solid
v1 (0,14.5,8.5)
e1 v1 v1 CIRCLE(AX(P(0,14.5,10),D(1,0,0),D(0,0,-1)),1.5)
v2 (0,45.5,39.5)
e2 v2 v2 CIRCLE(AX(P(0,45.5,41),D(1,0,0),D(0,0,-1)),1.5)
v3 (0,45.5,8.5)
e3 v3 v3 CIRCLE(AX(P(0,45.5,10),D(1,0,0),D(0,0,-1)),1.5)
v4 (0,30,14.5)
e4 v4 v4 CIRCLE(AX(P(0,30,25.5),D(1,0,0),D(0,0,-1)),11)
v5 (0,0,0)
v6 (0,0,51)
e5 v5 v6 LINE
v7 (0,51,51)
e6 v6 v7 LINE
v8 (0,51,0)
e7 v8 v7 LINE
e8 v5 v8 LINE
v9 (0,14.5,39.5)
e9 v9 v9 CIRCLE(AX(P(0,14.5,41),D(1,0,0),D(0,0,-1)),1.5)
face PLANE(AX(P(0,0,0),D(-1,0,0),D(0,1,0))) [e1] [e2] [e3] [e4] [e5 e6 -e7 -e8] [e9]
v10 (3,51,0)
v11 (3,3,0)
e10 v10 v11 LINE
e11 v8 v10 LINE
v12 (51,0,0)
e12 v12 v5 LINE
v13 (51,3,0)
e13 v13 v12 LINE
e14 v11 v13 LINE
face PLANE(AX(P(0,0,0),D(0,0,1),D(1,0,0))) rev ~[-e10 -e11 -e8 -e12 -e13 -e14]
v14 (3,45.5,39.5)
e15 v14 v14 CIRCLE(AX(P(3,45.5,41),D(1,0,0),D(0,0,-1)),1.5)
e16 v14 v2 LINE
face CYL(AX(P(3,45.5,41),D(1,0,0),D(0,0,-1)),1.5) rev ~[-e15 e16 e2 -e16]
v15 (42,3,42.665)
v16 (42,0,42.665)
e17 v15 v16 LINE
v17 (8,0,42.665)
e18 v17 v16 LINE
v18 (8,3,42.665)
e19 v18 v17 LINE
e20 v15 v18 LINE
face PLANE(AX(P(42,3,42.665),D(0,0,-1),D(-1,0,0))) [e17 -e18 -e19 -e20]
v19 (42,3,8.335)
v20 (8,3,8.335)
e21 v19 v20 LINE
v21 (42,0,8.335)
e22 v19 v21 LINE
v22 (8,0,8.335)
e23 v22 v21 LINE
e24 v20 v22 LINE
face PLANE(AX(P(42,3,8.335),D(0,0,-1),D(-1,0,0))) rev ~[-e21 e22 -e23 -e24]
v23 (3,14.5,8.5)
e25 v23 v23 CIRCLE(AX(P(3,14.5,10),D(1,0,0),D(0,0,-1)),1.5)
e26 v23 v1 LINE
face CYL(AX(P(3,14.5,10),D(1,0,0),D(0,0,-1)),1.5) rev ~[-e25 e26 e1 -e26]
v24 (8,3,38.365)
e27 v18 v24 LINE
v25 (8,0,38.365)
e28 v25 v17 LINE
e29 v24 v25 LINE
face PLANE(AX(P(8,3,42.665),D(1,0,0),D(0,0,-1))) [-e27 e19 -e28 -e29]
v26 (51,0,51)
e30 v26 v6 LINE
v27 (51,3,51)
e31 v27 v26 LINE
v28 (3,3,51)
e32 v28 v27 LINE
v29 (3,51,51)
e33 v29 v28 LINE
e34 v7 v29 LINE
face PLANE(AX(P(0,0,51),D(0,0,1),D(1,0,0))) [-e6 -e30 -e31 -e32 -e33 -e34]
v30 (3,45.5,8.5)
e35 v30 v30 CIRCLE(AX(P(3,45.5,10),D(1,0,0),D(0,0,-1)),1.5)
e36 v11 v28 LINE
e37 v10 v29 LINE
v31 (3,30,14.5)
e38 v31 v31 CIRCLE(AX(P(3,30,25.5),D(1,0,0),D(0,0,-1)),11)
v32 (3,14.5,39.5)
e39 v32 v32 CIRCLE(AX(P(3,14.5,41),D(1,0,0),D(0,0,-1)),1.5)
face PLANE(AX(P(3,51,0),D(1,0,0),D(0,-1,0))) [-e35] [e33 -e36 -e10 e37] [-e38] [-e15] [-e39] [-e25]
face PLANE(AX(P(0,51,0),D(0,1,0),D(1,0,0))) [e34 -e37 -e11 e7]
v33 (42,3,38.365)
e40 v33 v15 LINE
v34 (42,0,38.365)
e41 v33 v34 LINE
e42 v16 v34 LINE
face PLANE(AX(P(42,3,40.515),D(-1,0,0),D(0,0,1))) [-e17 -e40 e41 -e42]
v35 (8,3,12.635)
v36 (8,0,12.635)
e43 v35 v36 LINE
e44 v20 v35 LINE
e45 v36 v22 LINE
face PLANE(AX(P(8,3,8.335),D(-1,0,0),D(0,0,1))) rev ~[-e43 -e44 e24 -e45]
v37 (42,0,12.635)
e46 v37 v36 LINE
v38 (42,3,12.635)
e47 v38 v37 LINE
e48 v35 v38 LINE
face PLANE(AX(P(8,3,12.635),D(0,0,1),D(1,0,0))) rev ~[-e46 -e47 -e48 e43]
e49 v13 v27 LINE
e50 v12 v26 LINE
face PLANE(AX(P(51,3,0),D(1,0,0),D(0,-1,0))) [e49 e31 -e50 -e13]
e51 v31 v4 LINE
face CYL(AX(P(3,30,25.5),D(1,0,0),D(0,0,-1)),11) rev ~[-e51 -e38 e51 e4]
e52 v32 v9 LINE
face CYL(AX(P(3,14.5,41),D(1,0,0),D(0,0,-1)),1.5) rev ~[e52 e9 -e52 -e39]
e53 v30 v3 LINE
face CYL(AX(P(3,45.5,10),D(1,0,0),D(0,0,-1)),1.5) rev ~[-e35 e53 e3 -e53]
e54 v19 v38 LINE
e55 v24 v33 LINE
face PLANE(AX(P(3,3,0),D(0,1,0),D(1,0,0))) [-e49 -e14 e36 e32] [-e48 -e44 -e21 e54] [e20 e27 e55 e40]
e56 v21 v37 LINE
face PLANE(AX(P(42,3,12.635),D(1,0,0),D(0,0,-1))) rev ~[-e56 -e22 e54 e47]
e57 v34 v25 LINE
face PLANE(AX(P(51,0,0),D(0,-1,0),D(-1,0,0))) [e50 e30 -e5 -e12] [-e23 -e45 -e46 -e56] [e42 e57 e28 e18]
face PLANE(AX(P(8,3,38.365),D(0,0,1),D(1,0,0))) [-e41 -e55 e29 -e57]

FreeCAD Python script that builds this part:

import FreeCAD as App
import Part
import Sketcher
from FreeCAD import Vector
Q = App.Units.Quantity

doc = App.newDocument("Part")
body = doc.addObject("PartDesign::Body", "Body")

sketch1 = body.newObject("Sketcher::SketchObject", "Sketch")
sketch1.AttachmentSupport = (doc.getObject("XY_Plane"), [""])
sketch1.MapMode = "FlatFace"
sketch1.addGeometry([
    Part.LineSegment(Vector(0, 51, 0), Vector(0, 0, 0)),
    Part.LineSegment(Vector(0, 0, 0), Vector(51, 0, 0)),
    Part.LineSegment(Vector(51, 0, 0), Vector(51, 3, 0)),
    Part.LineSegment(Vector(51, 3, 0), Vector(3, 3, 0)),
    Part.LineSegment(Vector(3, 3, 0), Vector(3, 51, 0)),
    Part.LineSegment(Vector(3, 51, 0), Vector(0, 51, 0)),
], False)
sketch1.addConstraint([
    Sketcher.Constraint("Coincident", 0, 2, 1, 1),
    Sketcher.Constraint("Coincident", 1, 2, 2, 1),
    Sketcher.Constraint("Coincident", 2, 2, 3, 1),
    Sketcher.Constraint("Coincident", 3, 2, 4, 1),
    Sketcher.Constraint("Coincident", 4, 2, 5, 1),
    Sketcher.Constraint("Coincident", 5, 2, 0, 1),
    Sketcher.Constraint("Vertical", 0),
    Sketcher.Constraint("Horizontal", 1),
    Sketcher.Constraint("Vertical", 2),
    Sketcher.Constraint("Horizontal", 3),
    Sketcher.Constraint("Vertical", 4),
    Sketcher.Constraint("Horizontal", 5),
    Sketcher.Constraint("Coincident", 0, 2, -1, 1),
    Sketcher.Constraint("Equal", 1, 0),
    Sketcher.Constraint("Equal", 5, 2),
    Sketcher.Constraint("DistanceX", 1, 1, 1, 2, Q("51 mm")),
    Sketcher.Constraint("DistanceX", 3, 2, 3, 1, Q("48 mm")),
])
pad1 = body.newObject("PartDesign::Pad", "Pad")
pad1.Profile = sketch1
pad1.Length = 51

sketch2 = body.newObject("Sketcher::SketchObject", "Sketch001")
sketch2.AttachmentSupport = (doc.getObject("YZ_Plane"), [""])
sketch2.MapMode = "FlatFace"
sketch2.AttachmentOffset = App.Placement(Vector(0, 0, 3), App.Rotation())
sketch2.addGeometry([
    Part.Circle(Vector(30, 25.5, 0), Vector(0, 0, 1), 11),
    Part.Circle(Vector(45.5, 41, 0), Vector(0, 0, 1), 1.5),
    Part.Circle(Vector(45.5, 10, 0), Vector(0, 0, 1), 1.5),
    Part.Circle(Vector(14.5, 10, 0), Vector(0, 0, 1), 1.5),
    Part.Circle(Vector(14.5, 41, 0), Vector(0, 0, 1), 1.5),
], False)
sketch2.addConstraint([
    Sketcher.Constraint("Equal", 1, 2),
    Sketcher.Constraint("Equal", 2, 3),
    Sketcher.Constraint("Equal", 3, 4),
    Sketcher.Constraint("Horizontal", 2, 3, 3, 3),
    Sketcher.Constraint("Horizontal", 1, 3, 4, 3),
    Sketcher.Constraint("Vertical", 1, 3, 2, 3),
    Sketcher.Constraint("Vertical", 3, 3, 4, 3),
    Sketcher.Constraint("Diameter", 0, Q("22 mm")),
    Sketcher.Constraint("Diameter", 1, Q("3 mm")),
    Sketcher.Constraint("DistanceX", -1, 1, 0, 3, Q("30 mm")),
    Sketcher.Constraint("DistanceY", -1, 1, 1, 3, Q("41 mm")),
    Sketcher.Constraint("DistanceY", -1, 1, 2, 3, Q("10 mm")),
    Sketcher.Constraint("DistanceX", 3, 3, 2, 3, Q("31 mm")),
    Sketcher.Constraint("DistanceY", -1, 1, 0, 3, Q("25.5 mm")),
    Sketcher.Constraint("DistanceX", -1, 1, 1, 3, Q("45.5 mm")),
])
pocket1 = body.newObject("PartDesign::Pocket", "Pocket")
pocket1.Profile = sketch2
pocket1.Length = 3

sketch3 = body.newObject("Sketcher::SketchObject", "Sketch002")
sketch3.AttachmentSupport = (doc.getObject("XZ_Plane"), [""])
sketch3.MapMode = "FlatFace"
sketch3.AttachmentOffset = App.Placement(Vector(0, 0, -3), App.Rotation())
sketch3.addGeometry([
    Part.LineSegment(Vector(42, 12.635, 0), Vector(42, 8.335, 0)),
    Part.LineSegment(Vector(42, 8.335, 0), Vector(8, 8.335, 0)),
    Part.LineSegment(Vector(8, 8.335, 0), Vector(8, 12.635, 0)),
    Part.LineSegment(Vector(8, 12.635, 0), Vector(42, 12.635, 0)),
    Part.LineSegment(Vector(42, 42.665, 0), Vector(42, 38.365, 0)),
    Part.LineSegment(Vector(42, 38.365, 0), Vector(8, 38.365, 0)),
    Part.LineSegment(Vector(8, 38.365, 0), Vector(8, 42.665, 0)),
    Part.LineSegment(Vector(8, 42.665, 0), Vector(42, 42.665, 0)),
], False)
sketch3.addConstraint([
    Sketcher.Constraint("Coincident", 0, 2, 1, 1),
    Sketcher.Constraint("Coincident", 1, 2, 2, 1),
    Sketcher.Constraint("Coincident", 2, 2, 3, 1),
    Sketcher.Constraint("Coincident", 3, 2, 0, 1),
    Sketcher.Constraint("Coincident", 4, 2, 5, 1),
    Sketcher.Constraint("Coincident", 5, 2, 6, 1),
    Sketcher.Constraint("Coincident", 6, 2, 7, 1),
    Sketcher.Constraint("Coincident", 7, 2, 4, 1),
    Sketcher.Constraint("Vertical", 0),
    Sketcher.Constraint("Horizontal", 1),
    Sketcher.Constraint("Vertical", 2),
    Sketcher.Constraint("Horizontal", 3),
    Sketcher.Constraint("Vertical", 4),
    Sketcher.Constraint("Horizontal", 5),
    Sketcher.Constraint("Vertical", 6),
    Sketcher.Constraint("Horizontal", 7),
    Sketcher.Constraint("Vertical", 3, 2, 4, 2),
    Sketcher.Constraint("Vertical", 2, 2, 5, 2),
    Sketcher.Constraint("Equal", 2, 4),
    Sketcher.Constraint("DistanceY", 0, 2, 0, 1, Q("4.3 mm")),
    Sketcher.Constraint("DistanceX", 1, 2, 1, 1, Q("34 mm")),
    Sketcher.Constraint("DistanceX", -1, 1, 0, 2, Q("42 mm")),
    Sketcher.Constraint("DistanceY", 3, 2, 4, 2, Q("25.73 mm")),
    Sketcher.Constraint("DistanceY", -1, 1, 0, 2, Q("8.335 mm")),
])
pocket2 = body.newObject("PartDesign::Pocket", "Pocket001")
pocket2.Profile = sketch3
pocket2.Type = "ThroughAll"
pocket2.Reversed = True

doc.recompute()
